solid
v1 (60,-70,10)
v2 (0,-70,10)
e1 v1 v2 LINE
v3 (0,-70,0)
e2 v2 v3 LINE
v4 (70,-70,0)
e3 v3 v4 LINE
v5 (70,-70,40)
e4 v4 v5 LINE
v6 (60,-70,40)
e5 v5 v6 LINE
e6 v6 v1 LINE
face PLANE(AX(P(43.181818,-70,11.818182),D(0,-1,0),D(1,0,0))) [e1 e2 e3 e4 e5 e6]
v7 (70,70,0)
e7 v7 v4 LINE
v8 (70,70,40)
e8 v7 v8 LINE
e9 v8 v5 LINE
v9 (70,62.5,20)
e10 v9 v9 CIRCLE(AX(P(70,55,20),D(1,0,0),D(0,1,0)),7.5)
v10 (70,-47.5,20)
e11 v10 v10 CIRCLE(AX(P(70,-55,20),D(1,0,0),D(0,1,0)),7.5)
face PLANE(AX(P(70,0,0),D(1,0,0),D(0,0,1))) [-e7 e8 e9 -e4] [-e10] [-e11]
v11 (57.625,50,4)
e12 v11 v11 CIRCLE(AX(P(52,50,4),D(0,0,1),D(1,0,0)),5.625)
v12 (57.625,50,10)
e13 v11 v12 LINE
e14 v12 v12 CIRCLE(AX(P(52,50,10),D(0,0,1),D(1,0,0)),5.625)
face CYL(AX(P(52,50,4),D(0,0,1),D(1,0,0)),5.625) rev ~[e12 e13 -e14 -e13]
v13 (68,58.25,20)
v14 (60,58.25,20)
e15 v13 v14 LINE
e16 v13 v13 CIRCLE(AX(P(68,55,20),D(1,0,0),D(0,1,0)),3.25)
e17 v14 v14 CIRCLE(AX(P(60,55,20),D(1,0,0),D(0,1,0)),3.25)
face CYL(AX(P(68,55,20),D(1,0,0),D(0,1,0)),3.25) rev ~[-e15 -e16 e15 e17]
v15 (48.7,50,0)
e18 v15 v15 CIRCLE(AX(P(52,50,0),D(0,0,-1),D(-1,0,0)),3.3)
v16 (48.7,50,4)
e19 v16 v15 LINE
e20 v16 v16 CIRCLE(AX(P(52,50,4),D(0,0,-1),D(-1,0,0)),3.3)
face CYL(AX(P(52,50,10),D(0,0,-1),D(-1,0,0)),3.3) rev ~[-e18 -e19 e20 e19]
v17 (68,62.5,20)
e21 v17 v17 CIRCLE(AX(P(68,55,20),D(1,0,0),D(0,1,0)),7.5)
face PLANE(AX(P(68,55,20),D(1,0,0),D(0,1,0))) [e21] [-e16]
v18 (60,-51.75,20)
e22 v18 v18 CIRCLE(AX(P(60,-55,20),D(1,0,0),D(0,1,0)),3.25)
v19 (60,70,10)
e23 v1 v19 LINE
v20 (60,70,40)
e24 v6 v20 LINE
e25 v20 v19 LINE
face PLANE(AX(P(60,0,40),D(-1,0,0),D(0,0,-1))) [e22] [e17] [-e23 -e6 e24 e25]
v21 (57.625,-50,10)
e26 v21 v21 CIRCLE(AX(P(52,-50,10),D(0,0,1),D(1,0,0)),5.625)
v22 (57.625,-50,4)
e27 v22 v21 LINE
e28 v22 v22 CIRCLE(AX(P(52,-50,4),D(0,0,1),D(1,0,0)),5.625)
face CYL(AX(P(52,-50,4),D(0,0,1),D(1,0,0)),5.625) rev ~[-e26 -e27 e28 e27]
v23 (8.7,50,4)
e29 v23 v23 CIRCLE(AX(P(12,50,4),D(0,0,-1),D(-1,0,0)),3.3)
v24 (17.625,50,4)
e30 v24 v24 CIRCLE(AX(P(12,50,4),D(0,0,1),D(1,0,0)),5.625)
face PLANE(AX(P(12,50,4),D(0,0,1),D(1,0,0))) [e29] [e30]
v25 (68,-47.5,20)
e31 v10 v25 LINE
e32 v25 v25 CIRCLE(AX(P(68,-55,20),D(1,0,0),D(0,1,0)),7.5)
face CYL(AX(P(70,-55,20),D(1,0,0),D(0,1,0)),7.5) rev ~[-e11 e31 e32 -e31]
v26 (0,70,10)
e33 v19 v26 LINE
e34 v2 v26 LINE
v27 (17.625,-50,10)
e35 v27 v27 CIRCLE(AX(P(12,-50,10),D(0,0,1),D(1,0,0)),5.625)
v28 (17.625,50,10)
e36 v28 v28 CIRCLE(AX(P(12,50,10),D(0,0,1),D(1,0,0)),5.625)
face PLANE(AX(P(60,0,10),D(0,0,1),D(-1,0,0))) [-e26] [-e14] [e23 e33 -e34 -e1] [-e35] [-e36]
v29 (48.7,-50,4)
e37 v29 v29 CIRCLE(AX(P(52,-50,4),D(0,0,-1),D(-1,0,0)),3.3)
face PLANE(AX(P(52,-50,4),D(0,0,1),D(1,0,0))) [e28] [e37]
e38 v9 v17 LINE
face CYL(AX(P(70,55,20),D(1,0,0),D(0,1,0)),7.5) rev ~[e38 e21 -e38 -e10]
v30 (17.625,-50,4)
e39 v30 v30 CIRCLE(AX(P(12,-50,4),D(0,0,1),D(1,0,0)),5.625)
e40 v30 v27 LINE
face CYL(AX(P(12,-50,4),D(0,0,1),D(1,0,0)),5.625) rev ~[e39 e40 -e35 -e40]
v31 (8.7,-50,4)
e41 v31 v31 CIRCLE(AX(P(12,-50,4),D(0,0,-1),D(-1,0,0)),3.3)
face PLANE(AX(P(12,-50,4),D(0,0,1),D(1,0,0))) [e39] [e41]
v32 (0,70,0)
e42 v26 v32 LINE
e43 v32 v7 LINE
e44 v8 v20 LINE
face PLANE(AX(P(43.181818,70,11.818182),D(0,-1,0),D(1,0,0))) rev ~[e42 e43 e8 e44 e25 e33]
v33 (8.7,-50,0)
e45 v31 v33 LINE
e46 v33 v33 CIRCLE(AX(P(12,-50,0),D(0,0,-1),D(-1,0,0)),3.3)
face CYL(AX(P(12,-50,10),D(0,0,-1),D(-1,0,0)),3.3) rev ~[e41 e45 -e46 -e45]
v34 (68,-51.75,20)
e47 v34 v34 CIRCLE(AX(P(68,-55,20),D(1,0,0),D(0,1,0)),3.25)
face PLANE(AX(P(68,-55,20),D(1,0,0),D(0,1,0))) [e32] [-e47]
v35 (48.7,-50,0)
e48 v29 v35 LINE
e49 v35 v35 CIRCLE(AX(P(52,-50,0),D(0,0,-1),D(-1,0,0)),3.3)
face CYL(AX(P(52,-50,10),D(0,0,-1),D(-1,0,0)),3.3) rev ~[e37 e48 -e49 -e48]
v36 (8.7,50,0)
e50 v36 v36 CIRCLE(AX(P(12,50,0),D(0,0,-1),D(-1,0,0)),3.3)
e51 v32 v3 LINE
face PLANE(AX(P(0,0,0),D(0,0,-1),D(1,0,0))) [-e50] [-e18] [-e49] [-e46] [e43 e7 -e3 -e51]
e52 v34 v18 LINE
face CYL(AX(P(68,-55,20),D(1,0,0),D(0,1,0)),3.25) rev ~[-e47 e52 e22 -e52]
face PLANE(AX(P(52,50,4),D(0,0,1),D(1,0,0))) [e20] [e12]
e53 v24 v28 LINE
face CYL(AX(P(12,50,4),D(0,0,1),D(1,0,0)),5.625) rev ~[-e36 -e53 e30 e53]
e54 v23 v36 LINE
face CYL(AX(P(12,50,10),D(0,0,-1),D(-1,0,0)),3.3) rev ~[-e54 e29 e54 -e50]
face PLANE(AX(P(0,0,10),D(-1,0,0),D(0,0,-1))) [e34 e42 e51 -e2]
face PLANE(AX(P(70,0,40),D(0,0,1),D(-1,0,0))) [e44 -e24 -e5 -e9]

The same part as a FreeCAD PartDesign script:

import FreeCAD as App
import Part
import Sketcher
from FreeCAD import Vector


def add_polygon(sketch, points):
    """Adds a closed chain of lines whose ends are joined by coincident constraints."""
    first, n = sketch.GeometryCount, len(points)
    for a, b in zip(points, points[1:] + points[:1]):
        sketch.addGeometry(Part.LineSegment(App.Vector(*a, 0), App.Vector(*b, 0)), False)
    for i in range(n):
        sketch.addConstraint(Sketcher.Constraint("Coincident", first + i, 2, first + (i + 1) % n, 1))

doc = App.newDocument("Part")
body = doc.addObject("PartDesign::Body", "Body")

sketch1 = body.newObject("Sketcher::SketchObject", "Sketch")
sketch1.AttachmentSupport = (doc.getObject("XZ_Plane"), [""])
sketch1.MapMode = "FlatFace"
add_polygon(sketch1, [(0, 10), (0, 0), (70, 0), (70, 40), (60, 40), (60, 10)])
sketch1.addConstraint(Sketcher.Constraint("Vertical", 0))
sketch1.addConstraint(Sketcher.Constraint("Horizontal", 1))
sketch1.addConstraint(Sketcher.Constraint("Vertical", 2))
sketch1.addConstraint(Sketcher.Constraint("Horizontal", 3))
sketch1.addConstraint(Sketcher.Constraint("Vertical", 4))
sketch1.addConstraint(Sketcher.Constraint("Horizontal", 5))
sketch1.addConstraint(Sketcher.Constraint("Coincident", 0, 2, -1, 1))
sketch1.addConstraint(Sketcher.Constraint("Equal", 3, 0))
sketch1.addConstraint(Sketcher.Constraint("DistanceX", 1, 1, 1, 2, 70.0))
sketch1.addConstraint(Sketcher.Constraint("DistanceX", 3, 2, 3, 1, 10.0))
sketch1.addConstraint(Sketcher.Constraint("DistanceY", 2, 1, 2, 2, 40.0))
pad1 = body.newObject("PartDesign::Pad", "Pad")
pad1.Profile = sketch1
pad1.Length = 140
pad1.Midplane = True

sketch2 = body.newObject("Sketcher::SketchObject", "Sketch001")
sketch2.AttachmentSupport = (doc.getObject("XY_Plane"), [""])
sketch2.MapMode = "FlatFace"
sketch2.AttachmentOffset = App.Placement(Vector(0, 0, 10), App.Rotation())
sketch2.addGeometry(Part.Circle(Vector(12, 50, 0), Vector(0, 0, 1), 3.3), False)
sketch2.addGeometry(Part.Circle(Vector(52, 50, 0), Vector(0, 0, 1), 3.3), False)
sketch2.addGeometry(Part.Circle(Vector(52, -50, 0), Vector(0, 0, 1), 3.3), False)
sketch2.addGeometry(Part.Circle(Vector(12, -50, 0), Vector(0, 0, 1), 3.3), False)
sketch2.addConstraint(Sketcher.Constraint("Equal", 0, 1))
sketch2.addConstraint(Sketcher.Constraint("Equal", 1, 2))
sketch2.addConstraint(Sketcher.Constraint("Equal", 2, 3))
sketch2.addConstraint(Sketcher.Constraint("Symmetric", 1, 3, 2, 3, -1))
sketch2.addConstraint(Sketcher.Constraint("Symmetric", 0, 3, 3, 3, -1))
sketch2.addConstraint(Sketcher.Constraint("Horizontal", 0, 3, 1, 3))
sketch2.addConstraint(Sketcher.Constraint("Diameter", 0, 6.6))
sketch2.addConstraint(Sketcher.Constraint("DistanceX", -1, 1, 0, 3, 12.0))
sketch2.addConstraint(Sketcher.Constraint("DistanceY", -1, 1, 0, 3, 50.0))
sketch2.addConstraint(Sketcher.Constraint("DistanceX", -1, 1, 1, 3, 52.0))
doc.recompute()
hole = body.newObject("PartDesign::Hole", "Hole")
hole.Profile = sketch2
hole.ThreadType = "None"
hole.Diameter = 6.6
hole.DepthType = "Dimension"
hole.Depth = 12
hole.DrillPoint = "Angled"
hole.DrillPointAngle = 118
hole.HoleCutType = "Counterbore"
hole.HoleCutDiameter = 11.25
hole.HoleCutDepth = 6

sketch3 = body.newObject("Sketcher::SketchObject", "Sketch002")
sketch3.AttachmentSupport = (doc.getObject("YZ_Plane"), [""])
sketch3.MapMode = "FlatFace"
sketch3.AttachmentOffset = App.Placement(Vector(0, 0, 70), App.Rotation())
sketch3.addGeometry(Part.Circle(Vector(-55, 20, 0), Vector(0, 0, 1), 7.5), False)
sketch3.addGeometry(Part.Circle(Vector(55, 20, 0), Vector(0, 0, 1), 7.5), False)
sketch3.addConstraint(Sketcher.Constraint("Equal", 0, 1))
sketch3.addConstraint(Sketcher.Constraint("Symmetric", 0, 3, 1, 3, -2))
sketch3.addConstraint(Sketcher.Constraint("Diameter", 0, 15.0))
sketch3.addConstraint(Sketcher.Constraint("DistanceX", 0, 3, -1, 1, 55.0))
sketch3.addConstraint(Sketcher.Constraint("DistanceY", -1, 1, 0, 3, 20.0))
pocket1 = body.newObject("PartDesign::Pocket", "Pocket")
pocket1.Profile = sketch3
pocket1.Length = 2

sketch4 = body.newObject("Sketcher::SketchObject", "Sketch003")
sketch4.AttachmentSupport = (doc.getObject("YZ_Plane"), [""])
sketch4.MapMode = "FlatFace"
sketch4.AttachmentOffset = App.Placement(Vector(0, 0, 68), App.Rotation())
sketch4.addGeometry(Part.Circle(Vector(-55, 20, 0), Vector(0, 0, 1), 3.25), False)
sketch4.addGeometry(Part.Circle(Vector(55, 20, 0), Vector(0, 0, 1), 3.25), False)
sketch4.addConstraint(Sketcher.Constraint("Equal", 0, 1))
sketch4.addConstraint(Sketcher.Constraint("Symmetric", 0, 3, 1, 3, -2))
sketch4.addConstraint(Sketcher.Constraint("Diameter", 0, 6.5))
sketch4.addConstraint(Sketcher.Constraint("DistanceX", 0, 3, -1, 1, 55.0))
sketch4.addConstraint(Sketcher.Constraint("DistanceY", -1, 1, 0, 3, 20.0))
pocket2 = body.newObject("PartDesign::Pocket", "Pocket001")
pocket2.Profile = sketch4
pocket2.Length = 25

doc.recompute()
